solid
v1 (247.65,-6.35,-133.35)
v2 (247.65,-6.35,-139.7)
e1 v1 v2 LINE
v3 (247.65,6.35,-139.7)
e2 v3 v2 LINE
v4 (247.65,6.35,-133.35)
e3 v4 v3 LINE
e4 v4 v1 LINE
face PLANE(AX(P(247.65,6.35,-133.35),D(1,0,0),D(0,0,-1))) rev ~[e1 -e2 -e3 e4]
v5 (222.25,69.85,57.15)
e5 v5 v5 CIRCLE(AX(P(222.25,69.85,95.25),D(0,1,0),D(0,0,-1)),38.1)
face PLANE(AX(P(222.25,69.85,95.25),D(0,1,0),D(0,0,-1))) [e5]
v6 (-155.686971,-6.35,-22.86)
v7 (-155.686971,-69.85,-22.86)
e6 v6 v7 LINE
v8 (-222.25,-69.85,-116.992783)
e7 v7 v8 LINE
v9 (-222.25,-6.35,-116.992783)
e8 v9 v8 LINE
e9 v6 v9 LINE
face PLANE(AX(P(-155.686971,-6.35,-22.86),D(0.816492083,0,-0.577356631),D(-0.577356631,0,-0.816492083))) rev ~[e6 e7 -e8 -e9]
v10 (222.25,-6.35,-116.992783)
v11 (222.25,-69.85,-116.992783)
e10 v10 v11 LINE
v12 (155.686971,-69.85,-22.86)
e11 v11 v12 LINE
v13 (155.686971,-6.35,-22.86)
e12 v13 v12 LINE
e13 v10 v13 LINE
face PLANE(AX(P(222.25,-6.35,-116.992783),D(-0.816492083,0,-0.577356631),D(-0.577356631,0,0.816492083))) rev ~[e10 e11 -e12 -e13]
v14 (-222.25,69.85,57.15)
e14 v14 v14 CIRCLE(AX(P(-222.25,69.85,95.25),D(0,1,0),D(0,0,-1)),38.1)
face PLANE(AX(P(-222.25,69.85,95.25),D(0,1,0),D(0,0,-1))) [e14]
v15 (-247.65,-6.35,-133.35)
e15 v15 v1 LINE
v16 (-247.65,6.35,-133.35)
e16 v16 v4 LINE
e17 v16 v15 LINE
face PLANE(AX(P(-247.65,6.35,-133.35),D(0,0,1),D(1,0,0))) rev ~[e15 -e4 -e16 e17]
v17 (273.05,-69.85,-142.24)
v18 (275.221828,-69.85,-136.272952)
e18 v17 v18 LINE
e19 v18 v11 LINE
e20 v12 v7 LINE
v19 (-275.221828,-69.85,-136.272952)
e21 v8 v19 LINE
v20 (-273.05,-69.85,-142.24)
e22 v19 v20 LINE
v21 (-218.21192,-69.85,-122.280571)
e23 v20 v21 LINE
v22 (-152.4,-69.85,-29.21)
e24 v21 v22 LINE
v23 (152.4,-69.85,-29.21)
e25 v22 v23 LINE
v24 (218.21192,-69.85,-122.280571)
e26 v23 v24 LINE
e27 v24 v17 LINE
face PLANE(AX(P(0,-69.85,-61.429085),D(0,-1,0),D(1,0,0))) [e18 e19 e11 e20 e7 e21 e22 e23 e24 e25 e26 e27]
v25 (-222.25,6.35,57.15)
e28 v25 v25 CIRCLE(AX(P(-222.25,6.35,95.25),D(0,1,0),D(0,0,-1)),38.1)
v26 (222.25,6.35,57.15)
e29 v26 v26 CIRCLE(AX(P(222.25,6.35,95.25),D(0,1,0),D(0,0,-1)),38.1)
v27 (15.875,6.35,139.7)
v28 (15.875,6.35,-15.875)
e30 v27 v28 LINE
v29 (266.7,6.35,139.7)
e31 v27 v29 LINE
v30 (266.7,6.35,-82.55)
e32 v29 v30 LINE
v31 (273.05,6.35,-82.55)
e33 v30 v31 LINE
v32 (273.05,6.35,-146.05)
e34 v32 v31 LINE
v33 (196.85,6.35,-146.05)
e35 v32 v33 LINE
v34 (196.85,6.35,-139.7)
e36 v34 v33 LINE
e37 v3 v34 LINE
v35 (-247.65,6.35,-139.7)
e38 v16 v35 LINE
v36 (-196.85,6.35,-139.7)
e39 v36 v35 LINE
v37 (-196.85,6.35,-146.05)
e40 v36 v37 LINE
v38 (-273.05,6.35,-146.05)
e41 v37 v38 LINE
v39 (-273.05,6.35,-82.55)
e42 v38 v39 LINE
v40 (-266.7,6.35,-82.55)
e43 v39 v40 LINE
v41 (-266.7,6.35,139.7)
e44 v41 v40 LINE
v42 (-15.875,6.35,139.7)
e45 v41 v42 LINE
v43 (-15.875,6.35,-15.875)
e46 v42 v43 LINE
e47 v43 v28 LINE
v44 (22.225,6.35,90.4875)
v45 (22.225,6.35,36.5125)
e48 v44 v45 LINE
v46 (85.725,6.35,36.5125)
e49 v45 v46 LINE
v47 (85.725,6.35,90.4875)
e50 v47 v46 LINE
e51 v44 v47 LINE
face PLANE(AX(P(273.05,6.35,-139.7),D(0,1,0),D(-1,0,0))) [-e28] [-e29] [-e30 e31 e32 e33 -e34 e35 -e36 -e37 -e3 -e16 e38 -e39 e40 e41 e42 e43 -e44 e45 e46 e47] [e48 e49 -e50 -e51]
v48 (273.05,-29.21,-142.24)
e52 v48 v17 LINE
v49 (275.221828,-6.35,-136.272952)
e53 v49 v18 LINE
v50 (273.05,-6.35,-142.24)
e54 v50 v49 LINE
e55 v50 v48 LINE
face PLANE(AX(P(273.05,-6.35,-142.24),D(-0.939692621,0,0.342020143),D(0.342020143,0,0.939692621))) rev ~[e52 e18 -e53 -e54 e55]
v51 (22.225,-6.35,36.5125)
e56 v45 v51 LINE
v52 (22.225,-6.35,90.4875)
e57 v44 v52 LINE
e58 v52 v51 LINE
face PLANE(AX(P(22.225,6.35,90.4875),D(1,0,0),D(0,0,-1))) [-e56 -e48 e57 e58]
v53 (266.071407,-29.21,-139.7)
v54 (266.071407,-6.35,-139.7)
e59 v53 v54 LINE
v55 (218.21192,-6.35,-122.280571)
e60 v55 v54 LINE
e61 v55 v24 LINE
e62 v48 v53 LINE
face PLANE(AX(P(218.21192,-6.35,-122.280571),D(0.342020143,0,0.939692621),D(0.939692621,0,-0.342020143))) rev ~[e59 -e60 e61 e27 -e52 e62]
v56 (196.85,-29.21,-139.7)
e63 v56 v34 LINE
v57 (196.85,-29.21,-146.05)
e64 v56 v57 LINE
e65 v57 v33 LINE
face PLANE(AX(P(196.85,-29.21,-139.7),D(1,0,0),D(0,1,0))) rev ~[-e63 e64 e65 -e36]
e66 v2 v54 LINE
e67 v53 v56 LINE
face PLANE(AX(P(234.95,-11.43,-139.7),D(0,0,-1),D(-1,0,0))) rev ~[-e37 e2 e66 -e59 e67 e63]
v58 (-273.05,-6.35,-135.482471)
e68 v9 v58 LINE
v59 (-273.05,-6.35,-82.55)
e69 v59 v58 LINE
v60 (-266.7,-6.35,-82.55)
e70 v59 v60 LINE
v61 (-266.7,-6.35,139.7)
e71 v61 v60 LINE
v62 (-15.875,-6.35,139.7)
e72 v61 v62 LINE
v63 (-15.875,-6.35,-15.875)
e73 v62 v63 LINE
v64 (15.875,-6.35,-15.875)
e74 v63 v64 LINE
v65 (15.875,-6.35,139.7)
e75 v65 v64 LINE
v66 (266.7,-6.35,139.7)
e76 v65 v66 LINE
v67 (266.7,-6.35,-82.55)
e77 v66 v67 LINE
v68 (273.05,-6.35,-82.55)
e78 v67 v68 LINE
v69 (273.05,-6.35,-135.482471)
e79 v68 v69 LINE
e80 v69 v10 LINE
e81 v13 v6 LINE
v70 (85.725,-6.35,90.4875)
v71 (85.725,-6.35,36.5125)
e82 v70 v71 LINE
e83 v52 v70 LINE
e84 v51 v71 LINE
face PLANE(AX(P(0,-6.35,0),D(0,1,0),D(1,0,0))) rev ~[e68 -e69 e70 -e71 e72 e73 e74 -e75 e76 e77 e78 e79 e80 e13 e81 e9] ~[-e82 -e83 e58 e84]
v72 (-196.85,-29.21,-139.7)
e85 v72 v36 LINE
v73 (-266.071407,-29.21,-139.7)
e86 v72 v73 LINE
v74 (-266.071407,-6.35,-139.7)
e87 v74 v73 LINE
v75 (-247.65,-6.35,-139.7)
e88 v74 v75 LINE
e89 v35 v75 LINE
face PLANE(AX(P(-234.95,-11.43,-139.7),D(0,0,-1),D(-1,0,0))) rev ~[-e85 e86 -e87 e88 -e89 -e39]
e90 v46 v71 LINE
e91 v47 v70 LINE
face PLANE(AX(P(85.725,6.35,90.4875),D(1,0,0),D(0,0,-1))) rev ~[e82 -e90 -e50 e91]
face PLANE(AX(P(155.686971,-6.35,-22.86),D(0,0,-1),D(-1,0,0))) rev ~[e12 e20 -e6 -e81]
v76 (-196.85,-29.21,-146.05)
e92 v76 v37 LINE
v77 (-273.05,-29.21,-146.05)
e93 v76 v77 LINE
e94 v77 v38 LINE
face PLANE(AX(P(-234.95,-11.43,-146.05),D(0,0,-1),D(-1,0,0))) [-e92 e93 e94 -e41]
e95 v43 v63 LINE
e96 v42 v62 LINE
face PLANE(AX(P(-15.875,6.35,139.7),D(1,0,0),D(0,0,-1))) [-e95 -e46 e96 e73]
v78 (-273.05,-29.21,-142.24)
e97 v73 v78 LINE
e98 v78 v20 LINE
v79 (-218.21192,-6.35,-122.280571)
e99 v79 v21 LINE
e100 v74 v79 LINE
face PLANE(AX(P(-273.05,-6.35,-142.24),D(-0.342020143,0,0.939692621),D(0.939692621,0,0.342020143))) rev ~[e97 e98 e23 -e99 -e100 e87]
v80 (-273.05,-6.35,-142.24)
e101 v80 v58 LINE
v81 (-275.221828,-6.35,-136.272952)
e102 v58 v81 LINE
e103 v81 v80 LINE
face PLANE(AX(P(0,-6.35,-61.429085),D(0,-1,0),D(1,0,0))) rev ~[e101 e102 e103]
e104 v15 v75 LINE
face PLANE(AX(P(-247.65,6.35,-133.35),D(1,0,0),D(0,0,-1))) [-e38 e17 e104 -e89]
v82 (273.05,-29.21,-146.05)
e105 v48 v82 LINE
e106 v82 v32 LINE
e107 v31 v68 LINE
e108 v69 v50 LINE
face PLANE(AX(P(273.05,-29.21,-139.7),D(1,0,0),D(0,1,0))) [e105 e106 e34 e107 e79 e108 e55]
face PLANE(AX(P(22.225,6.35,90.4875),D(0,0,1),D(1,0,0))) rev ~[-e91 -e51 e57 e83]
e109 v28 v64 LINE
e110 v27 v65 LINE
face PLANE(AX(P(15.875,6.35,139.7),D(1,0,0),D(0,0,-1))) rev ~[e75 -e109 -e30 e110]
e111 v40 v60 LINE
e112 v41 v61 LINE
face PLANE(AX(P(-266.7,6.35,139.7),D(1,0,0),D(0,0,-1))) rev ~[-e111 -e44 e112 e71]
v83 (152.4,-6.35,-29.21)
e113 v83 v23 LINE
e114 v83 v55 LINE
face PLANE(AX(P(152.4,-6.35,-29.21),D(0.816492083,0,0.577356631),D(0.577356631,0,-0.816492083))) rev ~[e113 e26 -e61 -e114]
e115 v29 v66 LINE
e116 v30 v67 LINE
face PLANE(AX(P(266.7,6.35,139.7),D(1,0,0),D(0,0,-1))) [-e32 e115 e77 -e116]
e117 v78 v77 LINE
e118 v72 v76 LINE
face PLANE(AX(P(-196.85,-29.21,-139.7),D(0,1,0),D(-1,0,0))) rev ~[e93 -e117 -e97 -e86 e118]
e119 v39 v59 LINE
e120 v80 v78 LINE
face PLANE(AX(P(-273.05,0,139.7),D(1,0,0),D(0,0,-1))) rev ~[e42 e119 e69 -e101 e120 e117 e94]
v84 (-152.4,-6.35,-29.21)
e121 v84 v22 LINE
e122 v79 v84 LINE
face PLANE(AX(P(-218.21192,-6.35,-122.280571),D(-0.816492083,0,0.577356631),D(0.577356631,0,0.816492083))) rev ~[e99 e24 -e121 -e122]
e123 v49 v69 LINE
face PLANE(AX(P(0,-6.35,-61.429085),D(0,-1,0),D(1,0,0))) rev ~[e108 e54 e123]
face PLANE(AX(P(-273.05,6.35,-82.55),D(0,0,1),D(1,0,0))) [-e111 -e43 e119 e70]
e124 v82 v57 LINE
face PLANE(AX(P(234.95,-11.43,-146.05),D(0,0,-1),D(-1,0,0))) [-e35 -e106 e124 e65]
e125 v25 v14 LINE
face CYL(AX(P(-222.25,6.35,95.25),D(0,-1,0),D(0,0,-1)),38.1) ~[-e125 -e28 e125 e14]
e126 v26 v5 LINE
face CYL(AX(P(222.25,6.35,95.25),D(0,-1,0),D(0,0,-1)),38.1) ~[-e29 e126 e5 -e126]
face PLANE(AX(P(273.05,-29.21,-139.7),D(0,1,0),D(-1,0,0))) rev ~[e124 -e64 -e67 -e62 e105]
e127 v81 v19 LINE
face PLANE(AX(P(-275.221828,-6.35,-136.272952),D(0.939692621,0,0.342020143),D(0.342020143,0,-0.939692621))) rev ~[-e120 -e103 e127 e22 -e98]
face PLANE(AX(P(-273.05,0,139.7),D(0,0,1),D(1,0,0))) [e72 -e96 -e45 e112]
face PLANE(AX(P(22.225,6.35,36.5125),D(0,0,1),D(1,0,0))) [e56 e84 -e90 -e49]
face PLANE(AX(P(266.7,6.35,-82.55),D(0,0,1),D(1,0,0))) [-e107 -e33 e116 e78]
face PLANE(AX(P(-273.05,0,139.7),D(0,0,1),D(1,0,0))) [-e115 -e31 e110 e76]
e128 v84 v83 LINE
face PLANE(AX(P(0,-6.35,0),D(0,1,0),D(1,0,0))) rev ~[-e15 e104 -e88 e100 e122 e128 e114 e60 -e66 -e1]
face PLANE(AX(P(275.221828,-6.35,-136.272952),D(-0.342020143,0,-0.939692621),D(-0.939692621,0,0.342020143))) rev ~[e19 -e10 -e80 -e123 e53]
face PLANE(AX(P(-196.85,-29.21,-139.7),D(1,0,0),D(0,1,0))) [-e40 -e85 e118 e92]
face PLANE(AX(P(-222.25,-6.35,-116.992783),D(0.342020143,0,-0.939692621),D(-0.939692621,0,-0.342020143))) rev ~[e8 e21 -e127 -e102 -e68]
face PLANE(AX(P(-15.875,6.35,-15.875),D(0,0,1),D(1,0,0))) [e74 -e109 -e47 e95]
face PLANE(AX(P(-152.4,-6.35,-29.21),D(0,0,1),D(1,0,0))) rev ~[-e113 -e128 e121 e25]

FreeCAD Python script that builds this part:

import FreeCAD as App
import Part
import Sketcher
Q = App.Units.Quantity


def add_polygon(sketch, points):
    """Adds a closed chain of lines whose ends are joined by coincident constraints."""
    first, n = sketch.GeometryCount, len(points)
    for a, b in zip(points, points[1:] + points[:1]):
        sketch.addGeometry(Part.LineSegment(App.Vector(*a, 0), App.Vector(*b, 0)), False)
    for i in range(n):
        sketch.addConstraint(Sketcher.Constraint("Coincident", first + i, 2, first + (i + 1) % n, 1))

doc = App.newDocument("Part")
params = doc.addObject("Spreadsheet::Sheet", "Params")
for row, (alias, value) in enumerate([
    ("sketch1_height", "11 in"),
    ("sketch1_width", "21.5 in"),
    ("pad1_length", "0.5 in"),
    ("sketch2_width", "2.5 in"),
    ("sketch2_width2", "19.5 in"),
    ("sketch2_width3", "1.25 in"),
    ("sketch2_width4", "0.25 in"),
    ("sketch2_height", "6.125 in"),
    ("sketch3_width", "12 in"),
    ("sketch3_length", "0.25 in"),
    ("pad2_length", "2.5 in"),
    ("sketch4_diameter", "3 in"),
    ("pad3_length", "2.5 in"),
    ("sketch5_width", "3 in"),
    ("sketch5_height", "1.4 in"),
    ("pad4_length", "0.25 in"),
], start=1):
    params.set(f"A{row}", alias)
    params.set(f"B{row}", "=" + value)
    params.setAlias(f"B{row}", alias)

body = doc.addObject("PartDesign::Body", "Body")

# Sketch on XZ plane
sketch1 = doc.addObject("Sketcher::SketchObject", "Sketch")
body.addObject(sketch1)
sketch1.AttachmentSupport = (doc.XZ_Plane, [""])
sketch1.MapMode = "FlatFace"
add_polygon(sketch1, [(-273.05, -139.7), (-273.05, 139.7), (273.05, 139.7), (273.05, -139.7)])  # lines 0-3
sketch1.addConstraint(Sketcher.Constraint("Vertical", 0))
sketch1.addConstraint(Sketcher.Constraint("Horizontal", 1))
sketch1.addConstraint(Sketcher.Constraint("Vertical", 2))
sketch1.addConstraint(Sketcher.Constraint("Horizontal", 3))
sketch1.addConstraint(Sketcher.Constraint("Symmetric", 0, 2, 2, 2, -1, 1))
sketch1.addConstraint(Sketcher.Constraint("DistanceY", 0, 1, 0, 2, Q("11 in")))
sketch1.addConstraint(Sketcher.Constraint("DistanceX", 1, 1, 1, 2, Q("21.5 in")))
sketch1.setExpression("Constraints[9]", "Params.sketch1_height")
sketch1.setExpression("Constraints[10]", "Params.sketch1_width")
pad1 = doc.addObject("PartDesign::Pad", "Pad")
body.addObject(pad1)
pad1.Profile = sketch1
pad1.setExpression("Length", "Params.pad1_length")
pad1.Midplane = True

# Sketch on XZ plane
sketch2 = doc.addObject("Sketcher::SketchObject", "Sketch001")
body.addObject(sketch2)
sketch2.AttachmentSupport = (doc.XZ_Plane, [""])
sketch2.MapMode = "FlatFace"
sketch2.AttachmentOffset = App.Placement(App.Vector(0, 0, -0.25 * 25.4), App.Rotation())
add_polygon(sketch2, [(-15.875, -15.875), (-15.875, 139.7), (15.875, 139.7), (15.875, -15.875)])  # lines 0-3
add_polygon(sketch2, [(-273.05, -82.55), (-273.05, 139.7), (-266.7, 139.7), (-266.7, -82.55)])  # lines 4-7
add_polygon(sketch2, [(22.225, 36.5125), (22.225, 90.4875), (85.725, 90.4875), (85.725, 36.5125)])  # lines 8-11
add_polygon(sketch2, [(-247.65, -139.7), (-247.65, -133.35), (247.65, -133.35), (247.65, -139.7)])  # lines 12-15
add_polygon(sketch2, [(266.7, -82.55), (266.7, 139.7), (273.05, 139.7), (273.05, -82.55)])  # lines 16-19
sketch2.addConstraint(Sketcher.Constraint("Vertical", 0))
sketch2.addConstraint(Sketcher.Constraint("Horizontal", 1))
sketch2.addConstraint(Sketcher.Constraint("Vertical", 2))
sketch2.addConstraint(Sketcher.Constraint("Horizontal", 3))
sketch2.addConstraint(Sketcher.Constraint("Vertical", 4))
sketch2.addConstraint(Sketcher.Constraint("Horizontal", 5))
sketch2.addConstraint(Sketcher.Constraint("Vertical", 6))
sketch2.addConstraint(Sketcher.Constraint("Horizontal", 7))
sketch2.addConstraint(Sketcher.Constraint("Vertical", 8))
sketch2.addConstraint(Sketcher.Constraint("Horizontal", 9))
sketch2.addConstraint(Sketcher.Constraint("Vertical", 10))
sketch2.addConstraint(Sketcher.Constraint("Horizontal", 11))
sketch2.addConstraint(Sketcher.Constraint("Vertical", 12))
sketch2.addConstraint(Sketcher.Constraint("Horizontal", 13))
sketch2.addConstraint(Sketcher.Constraint("Vertical", 14))
sketch2.addConstraint(Sketcher.Constraint("Horizontal", 15))
sketch2.addConstraint(Sketcher.Constraint("Vertical", 16))
sketch2.addConstraint(Sketcher.Constraint("Horizontal", 17))
sketch2.addConstraint(Sketcher.Constraint("Vertical", 18))
sketch2.addConstraint(Sketcher.Constraint("Horizontal", 19))
sketch2.addConstraint(Sketcher.Constraint("Symmetric", 5, 2, 16, 2, -2))
sketch2.addConstraint(Sketcher.Constraint("Symmetric", 7, 2, 18, 2, -2))
sketch2.addConstraint(Sketcher.Constraint("Horizontal", 1, 2, 4, 2))
sketch2.addConstraint(Sketcher.Constraint("Equal", 19, 12))
sketch2.addConstraint(Sketcher.Constraint("DistanceX", 9, 1, 9, 2, Q("2.5 in")))
sketch2.addConstraint(Sketcher.Constraint("DistanceX", 13, 1, 13, 2, Q("19.5 in")))
sketch2.addConstraint(Sketcher.Constraint("DistanceX", 0, 2, 9, 2, Q("4 in")))
sketch2.addConstraint(Sketcher.Constraint("DistanceY", 12, 2, 6, 2, Q("2 in")))
sketch2.addConstraint(Sketcher.Constraint("DistanceX", 7, 2, 12, 2, Q("1 in")))
sketch2.addConstraint(Sketcher.Constraint("DistanceY", 15, 2, 5, 2, Q("11 in")))
sketch2.addConstraint(Sketcher.Constraint("DistanceX", 13, 2, 18, 2, Q("1 in")))
sketch2.addConstraint(Sketcher.Constraint("DistanceX", 1, 1, 1, 2, Q("1.25 in")))
sketch2.addConstraint(Sketcher.Constraint("DistanceX", 5, 1, 5, 2, Q("0.25 in")))
sketch2.addConstraint(Sketcher.Constraint("DistanceY", -1, 1, 0, 2, Q("5.5 in")))
sketch2.addConstraint(Sketcher.Constraint("DistanceY", 0, 1, 0, 2, Q("6.125 in")))
sketch2.addConstraint(Sketcher.Constraint("DistanceY", 8, 1, 8, 2, Q("2.125 in")))
sketch2.addConstraint(Sketcher.Constraint("DistanceX", 0, 2, -1, 1, Q("0.625 in")))
sketch2.addConstraint(Sketcher.Constraint("DistanceY", -1, 1, 8, 2, Q("3.5625 in")))
sketch2.setExpression("Constraints[44]", "Params.sketch2_width")
sketch2.setExpression("Constraints[45]", "Params.sketch2_width2")
sketch2.setExpression("Constraints[51]", "Params.sketch2_width3")
sketch2.setExpression("Constraints[52]", "Params.sketch2_width4")
sketch2.setExpression("Constraints[54]", "Params.sketch2_height")
pocket1 = doc.addObject("PartDesign::Pocket", "Pocket")
body.addObject(pocket1)
pocket1.Profile = sketch2
pocket1.Type = "ThroughAll"
pocket1.Reversed = True

# Sketch on XZ plane
sketch3 = doc.addObject("Sketcher::SketchObject", "Sketch002")
body.addObject(sketch3)
sketch3.AttachmentSupport = (doc.XZ_Plane, [""])
sketch3.MapMode = "FlatFace"
sketch3.AttachmentOffset = App.Placement(App.Vector(0, 0, 0.25 * 25.4), App.Rotation())
add_polygon(sketch3, [(222.25, -116.992783), (155.686971, -22.86), (-155.686971, -22.86), (-222.25, -116.992783), (-275.221828, -136.272952), (-273.05, -142.24), (-218.21192, -122.280571), (-152.4, -29.21), (152.4, -29.21), (218.21192, -122.280571), (273.05, -142.24), (275.221828, -136.272952)])  # lines 0-11
sketch3.addConstraint(Sketcher.Constraint("Horizontal", 1))
sketch3.addConstraint(Sketcher.Constraint("Horizontal", 7))
sketch3.addConstraint(Sketcher.Constraint("Symmetric", 5, 2, 8, 2, -2))
sketch3.addConstraint(Sketcher.Constraint("Symmetric", 4, 2, 9, 2, -2))
sketch3.addConstraint(Sketcher.Constraint("Symmetric", 3, 2, 10, 2, -2))
sketch3.addConstraint(Sketcher.Constraint("Symmetric", 2, 2, 11, 2, -2))
sketch3.addConstraint(Sketcher.Constraint("Perpendicular", 3, 4))
sketch3.addConstraint(Sketcher.Constraint("Perpendicular", 4, 5))
sketch3.addConstraint(Sketcher.Constraint("Parallel", 2, 6))
sketch3.addConstraint(Sketcher.Constraint("Parallel", 0, 8))
sketch3.addConstraint(Sketcher.Constraint("Equal", 0, 2))
sketch3.addConstraint(Sketcher.Constraint("DistanceX", 7, 1, 7, 2, Q("12 in")))
sketch3.addConstraint(Sketcher.Constraint("Angle", 3, Q("-160 deg")))
sketch3.addConstraint(Sketcher.Constraint("DistanceX", 4, 2, 2, 2, Q("2 in")))
sketch3.addConstraint(Sketcher.Constraint("DistanceY", 0, 2, -1, 1, Q("0.9 in")))
sketch3.addConstraint(Sketcher.Constraint("DistanceY", 4, 2, -1, 1, Q("5.6 in")))
sketch3.addConstraint(Sketcher.Constraint("Distance", 4, Q("0.25 in")))
sketch3.addConstraint(Sketcher.Constraint("DistanceX", 2, 2, -1, 1, Q("8.75 in")))
sketch3.addConstraint(Sketcher.Constraint("DistanceY", 6, 2, -1, 1, Q("1.15 in")))
sketch3.addConstraint(Sketcher.Constraint("DistanceX", 1, 2, 1, 1, Q("311.373941 mm")))
sketch3.setExpression("Constraints[23]", "Params.sketch3_width")
sketch3.setExpression("Constraints[28]", "Params.sketch3_length")
pad2 = doc.addObject("PartDesign::Pad", "Pad001")
body.addObject(pad2)
pad2.Profile = sketch3
pad2.setExpression("Length", "Params.pad2_length")

# Sketch on XZ plane
sketch4 = doc.addObject("Sketcher::SketchObject", "Sketch003")
body.addObject(sketch4)
sketch4.AttachmentSupport = (doc.XZ_Plane, [""])
sketch4.MapMode = "FlatFace"
sketch4.AttachmentOffset = App.Placement(App.Vector(0, 0, -0.25 * 25.4), App.Rotation())
sketch4.addGeometry(Part.Circle(App.Vector(222.25, 95.25, 0), App.Vector(0, 0, 1), 38.1), False)
sketch4.addGeometry(Part.Circle(App.Vector(-222.25, 95.25, 0), App.Vector(0, 0, 1), 38.1), False)
sketch4.addConstraint(Sketcher.Constraint("Equal", 0, 1))
sketch4.addConstraint(Sketcher.Constraint("Symmetric", 0, 3, 1, 3, -2))
sketch4.addConstraint(Sketcher.Constraint("Diameter", 0, Q("3 in")))
sketch4.addConstraint(Sketcher.Constraint("DistanceX", 1, 3, 0, 3, Q("17.5 in")))
sketch4.addConstraint(Sketcher.Constraint("DistanceY", -1, 1, 0, 3, Q("3.75 in")))
sketch4.setExpression("Constraints[2]", "Params.sketch4_diameter")
pad3 = doc.addObject("PartDesign::Pad", "Pad002")
body.addObject(pad3)
pad3.Profile = sketch4
pad3.setExpression("Length", "Params.pad3_length")
pad3.Reversed = True

# Sketch on XY plane
sketch5 = doc.addObject("Sketcher::SketchObject", "Sketch004")
body.addObject(sketch5)
sketch5.AttachmentSupport = (doc.XY_Plane, [""])
sketch5.MapMode = "FlatFace"
sketch5.AttachmentOffset = App.Placement(App.Vector(0, 0, -5.5 * 25.4), App.Rotation())
add_polygon(sketch5, [(273.05, 6.35), (273.05, -29.21), (196.85, -29.21), (196.85, 6.35)])  # lines 0-3
add_polygon(sketch5, [(-196.85, 6.35), (-196.85, -29.21), (-273.05, -29.21), (-273.05, 6.35)])  # lines 4-7
sketch5.addConstraint(Sketcher.Constraint("Vertical", 0))
sketch5.addConstraint(Sketcher.Constraint("Horizontal", 1))
sketch5.addConstraint(Sketcher.Constraint("Vertical", 2))
sketch5.addConstraint(Sketcher.Constraint("Horizontal", 3))
sketch5.addConstraint(Sketcher.Constraint("Vertical", 4))
sketch5.addConstraint(Sketcher.Constraint("Horizontal", 5))
sketch5.addConstraint(Sketcher.Constraint("Vertical", 6))
sketch5.addConstraint(Sketcher.Constraint("Horizontal", 7))
sketch5.addConstraint(Sketcher.Constraint("Symmetric", 1, 2, 4, 2, -2))
sketch5.addConstraint(Sketcher.Constraint("Symmetric", 3, 2, 6, 2, -2))
sketch5.addConstraint(Sketcher.Constraint("DistanceX", 1, 2, 1, 1, Q("3 in")))
sketch5.addConstraint(Sketcher.Constraint("DistanceY", 0, 2, 0, 1, Q("1.4 in")))
sketch5.addConstraint(Sketcher.Constraint("DistanceX", 4, 2, 1, 2, Q("15.5 in")))
sketch5.addConstraint(Sketcher.Constraint("DistanceY", 0, 2, -1, 1, Q("1.15 in")))
sketch5.setExpression("Constraints[18]", "Params.sketch5_width")
sketch5.setExpression("Constraints[19]", "Params.sketch5_height")
pad4 = doc.addObject("PartDesign::Pad", "Pad003")
body.addObject(pad4)
pad4.Profile = sketch5
pad4.setExpression("Length", "Params.pad4_length")
pad4.Reversed = True

doc.recompute()
